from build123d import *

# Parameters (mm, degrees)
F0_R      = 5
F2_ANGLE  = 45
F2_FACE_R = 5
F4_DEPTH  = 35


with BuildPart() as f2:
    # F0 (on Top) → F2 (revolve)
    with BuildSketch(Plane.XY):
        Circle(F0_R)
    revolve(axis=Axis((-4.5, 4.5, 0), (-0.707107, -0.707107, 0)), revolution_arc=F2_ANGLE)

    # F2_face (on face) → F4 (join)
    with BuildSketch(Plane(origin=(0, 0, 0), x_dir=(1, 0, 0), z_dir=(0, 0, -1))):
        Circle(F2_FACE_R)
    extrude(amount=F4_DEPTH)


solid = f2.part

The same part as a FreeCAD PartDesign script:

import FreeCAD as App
import Part
import Sketcher
Q = App.Units.Quantity

doc = App.newDocument("Part")
body = doc.addObject("PartDesign::Body", "Body")

# Sketch on XY plane
sketch1 = body.newObject("Sketcher::SketchObject", "Sketch")
sketch1.AttachmentSupport = (doc.getObject("XY_Plane"), [""])
sketch1.MapMode = "FlatFace"
sketch1.addGeometry(Part.Circle(App.Vector(0, 0, 0), App.Vector(0, 0, 1), 5), False)
sketch1.addGeometry(Part.LineSegment(App.Vector(-4, 4, 0), App.Vector(-12, -3, 0)), True)  # axis
sketch1.addConstraint([
    Sketcher.Constraint("Coincident", 0, 3, -1, 1),
    Sketcher.Constraint("Diameter", 0, 10.0),
    Sketcher.Constraint("Angle", 1, Q("-135 deg")),
    Sketcher.Constraint("Distance", 1, 10.0),
    Sketcher.Constraint("DistanceX", 1, 1, -1, 1, 4.5),
    Sketcher.Constraint("DistanceY", -1, 1, 1, 1, 4.5),
])
revolution = body.newObject("PartDesign::Revolution", "Revolution")
revolution.Profile = sketch1
revolution.ReferenceAxis = (sketch1, ["Axis0"])
revolution.Angle = 45

# Sketch on XY plane
sketch2 = body.newObject("Sketcher::SketchObject", "Sketch001")
sketch2.AttachmentSupport = (doc.getObject("XY_Plane"), [""])
sketch2.MapMode = "FlatFace"
sketch2.addGeometry(Part.Circle(App.Vector(0, 0, 0), App.Vector(0, 0, 1), 5), False)
sketch2.addConstraint([
    Sketcher.Constraint("Coincident", 0, 3, -1, 1),
    Sketcher.Constraint("Diameter", 0, 10.0),
])
pad1 = body.newObject("PartDesign::Pad", "Pad")
pad1.Profile = sketch2
pad1.Length = 35
pad1.Reversed = True

doc.recompute()
